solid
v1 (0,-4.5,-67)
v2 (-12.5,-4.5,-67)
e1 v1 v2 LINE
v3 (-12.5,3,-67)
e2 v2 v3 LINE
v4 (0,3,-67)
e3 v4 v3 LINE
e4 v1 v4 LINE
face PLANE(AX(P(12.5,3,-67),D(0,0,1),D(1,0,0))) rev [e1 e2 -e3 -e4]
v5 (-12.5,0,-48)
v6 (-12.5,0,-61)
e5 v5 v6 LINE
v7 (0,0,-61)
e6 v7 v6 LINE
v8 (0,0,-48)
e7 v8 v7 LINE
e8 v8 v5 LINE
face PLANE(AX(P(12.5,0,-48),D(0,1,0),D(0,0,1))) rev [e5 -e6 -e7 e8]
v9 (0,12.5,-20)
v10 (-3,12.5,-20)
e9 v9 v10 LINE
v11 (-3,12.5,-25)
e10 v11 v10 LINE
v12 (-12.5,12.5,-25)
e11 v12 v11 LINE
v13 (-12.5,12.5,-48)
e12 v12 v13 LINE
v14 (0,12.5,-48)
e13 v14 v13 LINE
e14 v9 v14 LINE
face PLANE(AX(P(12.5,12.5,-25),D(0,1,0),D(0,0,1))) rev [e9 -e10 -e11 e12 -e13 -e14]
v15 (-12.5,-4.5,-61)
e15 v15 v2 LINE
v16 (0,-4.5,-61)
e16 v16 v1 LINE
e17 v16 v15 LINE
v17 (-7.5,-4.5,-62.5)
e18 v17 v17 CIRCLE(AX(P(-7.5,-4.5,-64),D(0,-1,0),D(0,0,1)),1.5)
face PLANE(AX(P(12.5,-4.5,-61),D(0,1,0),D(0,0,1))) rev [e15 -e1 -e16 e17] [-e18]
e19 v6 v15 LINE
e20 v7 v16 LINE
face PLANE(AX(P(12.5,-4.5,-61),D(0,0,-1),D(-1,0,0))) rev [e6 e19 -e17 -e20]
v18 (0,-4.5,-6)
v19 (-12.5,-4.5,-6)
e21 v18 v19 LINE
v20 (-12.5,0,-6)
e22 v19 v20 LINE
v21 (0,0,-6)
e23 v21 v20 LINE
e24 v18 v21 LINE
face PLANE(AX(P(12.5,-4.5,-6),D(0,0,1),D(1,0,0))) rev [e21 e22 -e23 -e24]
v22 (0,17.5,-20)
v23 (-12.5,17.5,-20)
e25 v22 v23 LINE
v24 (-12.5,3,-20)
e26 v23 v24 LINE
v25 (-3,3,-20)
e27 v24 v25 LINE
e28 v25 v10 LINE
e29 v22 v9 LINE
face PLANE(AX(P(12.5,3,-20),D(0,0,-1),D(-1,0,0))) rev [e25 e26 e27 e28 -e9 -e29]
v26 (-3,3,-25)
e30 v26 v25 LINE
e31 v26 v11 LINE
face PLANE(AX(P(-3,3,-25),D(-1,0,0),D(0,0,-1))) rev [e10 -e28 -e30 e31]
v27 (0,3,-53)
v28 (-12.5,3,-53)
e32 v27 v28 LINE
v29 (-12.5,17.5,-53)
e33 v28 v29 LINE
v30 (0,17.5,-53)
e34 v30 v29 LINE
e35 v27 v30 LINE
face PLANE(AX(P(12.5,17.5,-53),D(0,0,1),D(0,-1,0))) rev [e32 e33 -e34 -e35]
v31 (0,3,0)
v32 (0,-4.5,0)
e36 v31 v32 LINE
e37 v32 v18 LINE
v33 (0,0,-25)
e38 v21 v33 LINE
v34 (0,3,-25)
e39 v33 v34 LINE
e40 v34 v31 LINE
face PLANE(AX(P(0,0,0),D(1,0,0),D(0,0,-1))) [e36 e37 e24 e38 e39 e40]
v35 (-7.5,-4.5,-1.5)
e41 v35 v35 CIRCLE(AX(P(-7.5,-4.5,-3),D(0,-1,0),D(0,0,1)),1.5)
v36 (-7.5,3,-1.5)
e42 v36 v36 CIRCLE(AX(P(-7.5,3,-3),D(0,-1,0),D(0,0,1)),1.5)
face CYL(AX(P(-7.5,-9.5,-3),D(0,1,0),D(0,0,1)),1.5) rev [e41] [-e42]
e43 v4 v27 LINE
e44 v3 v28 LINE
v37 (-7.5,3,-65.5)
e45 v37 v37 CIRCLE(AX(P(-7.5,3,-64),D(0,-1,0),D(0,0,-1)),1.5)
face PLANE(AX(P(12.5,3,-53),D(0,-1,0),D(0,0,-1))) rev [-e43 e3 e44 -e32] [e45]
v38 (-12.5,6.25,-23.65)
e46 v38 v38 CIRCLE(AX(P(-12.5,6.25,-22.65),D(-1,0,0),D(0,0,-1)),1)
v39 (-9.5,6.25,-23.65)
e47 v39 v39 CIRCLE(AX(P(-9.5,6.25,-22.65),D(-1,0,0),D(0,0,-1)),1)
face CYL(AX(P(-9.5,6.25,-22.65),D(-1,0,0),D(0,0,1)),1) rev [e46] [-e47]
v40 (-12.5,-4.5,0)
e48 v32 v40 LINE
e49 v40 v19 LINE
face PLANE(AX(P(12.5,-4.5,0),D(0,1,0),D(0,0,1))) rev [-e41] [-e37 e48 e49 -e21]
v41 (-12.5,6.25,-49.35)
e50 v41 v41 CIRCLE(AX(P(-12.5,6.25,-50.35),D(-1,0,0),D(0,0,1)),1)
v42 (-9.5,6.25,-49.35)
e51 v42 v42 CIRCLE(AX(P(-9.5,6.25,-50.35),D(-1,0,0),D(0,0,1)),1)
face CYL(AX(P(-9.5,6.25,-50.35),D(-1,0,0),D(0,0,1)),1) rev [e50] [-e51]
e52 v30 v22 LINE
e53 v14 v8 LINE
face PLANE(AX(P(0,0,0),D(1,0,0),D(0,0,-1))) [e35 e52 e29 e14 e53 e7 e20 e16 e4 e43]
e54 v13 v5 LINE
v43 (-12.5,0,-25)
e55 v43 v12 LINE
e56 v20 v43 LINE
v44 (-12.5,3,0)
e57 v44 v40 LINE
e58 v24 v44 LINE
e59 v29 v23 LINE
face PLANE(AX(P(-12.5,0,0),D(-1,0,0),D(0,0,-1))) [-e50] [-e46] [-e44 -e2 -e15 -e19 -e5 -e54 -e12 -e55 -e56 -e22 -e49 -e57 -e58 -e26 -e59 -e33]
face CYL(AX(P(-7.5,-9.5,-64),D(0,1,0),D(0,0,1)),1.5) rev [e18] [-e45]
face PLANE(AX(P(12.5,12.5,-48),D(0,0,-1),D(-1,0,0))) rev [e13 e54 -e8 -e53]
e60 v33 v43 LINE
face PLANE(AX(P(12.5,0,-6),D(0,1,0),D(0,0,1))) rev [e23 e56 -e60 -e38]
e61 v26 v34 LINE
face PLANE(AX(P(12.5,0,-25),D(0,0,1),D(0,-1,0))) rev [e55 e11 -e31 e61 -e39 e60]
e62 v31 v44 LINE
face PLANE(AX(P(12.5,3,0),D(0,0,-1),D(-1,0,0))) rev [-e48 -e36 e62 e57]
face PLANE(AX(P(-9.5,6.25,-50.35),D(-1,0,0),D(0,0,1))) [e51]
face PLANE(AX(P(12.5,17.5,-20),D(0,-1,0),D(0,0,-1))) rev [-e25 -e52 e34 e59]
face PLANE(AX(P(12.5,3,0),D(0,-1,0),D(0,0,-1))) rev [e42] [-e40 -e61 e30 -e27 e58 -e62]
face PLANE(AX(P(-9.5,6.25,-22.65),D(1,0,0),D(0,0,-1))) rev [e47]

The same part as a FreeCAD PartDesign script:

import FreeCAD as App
import Part
import Sketcher


def add_polygon(sketch, points):
    """Adds a closed chain of lines whose ends are joined by coincident constraints."""
    first, n = sketch.GeometryCount, len(points)
    for a, b in zip(points, points[1:] + points[:1]):
        sketch.addGeometry(Part.LineSegment(App.Vector(*a, 0), App.Vector(*b, 0)), False)
    for i in range(n):
        sketch.addConstraint(Sketcher.Constraint("Coincident", first + i, 2, first + (i + 1) % n, 1))

doc = App.newDocument("Part")
body = doc.addObject("PartDesign::Body", "Body")

sketch1 = body.newObject("Sketcher::SketchObject", "Sketch")
sketch1.AttachmentSupport = (doc.getObject("YZ_Plane"), [""])
sketch1.MapMode = "FlatFace"
add_polygon(sketch1, [(0, -6), (0, -25), (12.5, -25), (12.5, -48), (0, -48), (0, -61), (-4.5, -61), (-4.5, -67), (3, -67), (3, -53), (17.5, -53), (17.5, -20), (3, -20), (3, 0), (-4.5, 0), (-4.5, -6)])
sketch1.addConstraint(Sketcher.Constraint("Vertical", 0))
sketch1.addConstraint(Sketcher.Constraint("Horizontal", 1))
sketch1.addConstraint(Sketcher.Constraint("Vertical", 2))
sketch1.addConstraint(Sketcher.Constraint("Horizontal", 3))
sketch1.addConstraint(Sketcher.Constraint("Vertical", 4))
sketch1.addConstraint(Sketcher.Constraint("Horizontal", 5))
sketch1.addConstraint(Sketcher.Constraint("Vertical", 6))
sketch1.addConstraint(Sketcher.Constraint("Horizontal", 7))
sketch1.addConstraint(Sketcher.Constraint("Vertical", 8))
sketch1.addConstraint(Sketcher.Constraint("Horizontal", 9))
sketch1.addConstraint(Sketcher.Constraint("Vertical", 10))
sketch1.addConstraint(Sketcher.Constraint("Horizontal", 11))
sketch1.addConstraint(Sketcher.Constraint("Vertical", 12))
sketch1.addConstraint(Sketcher.Constraint("Horizontal", 13))
sketch1.addConstraint(Sketcher.Constraint("Vertical", 14))
sketch1.addConstraint(Sketcher.Constraint("Horizontal", 15))
sketch1.addConstraint(Sketcher.Constraint("PointOnObject", 0, 2, -2))
sketch1.addConstraint(Sketcher.Constraint("PointOnObject", 3, 2, -2))
sketch1.addConstraint(Sketcher.Constraint("PointOnObject", 12, 2, -1))
sketch1.addConstraint(Sketcher.Constraint("Vertical", 8, 2, 11, 2))
sketch1.addConstraint(Sketcher.Constraint("Vertical", 6, 2, 13, 2))
sketch1.addConstraint(Sketcher.Constraint("Equal", 6, 14))
sketch1.addConstraint(Sketcher.Constraint("DistanceY", 0, 2, 0, 1, 19.0))
sketch1.addConstraint(Sketcher.Constraint("DistanceY", 2, 2, 2, 1, 23.0))
sketch1.addConstraint(Sketcher.Constraint("DistanceY", 4, 2, 4, 1, 13.0))
sketch1.addConstraint(Sketcher.Constraint("DistanceY", 6, 2, 6, 1, 6.0))
sketch1.addConstraint(Sketcher.Constraint("DistanceY", 8, 1, 8, 2, 14.0))
sketch1.addConstraint(Sketcher.Constraint("DistanceY", 10, 1, 10, 2, 33.0))
sketch1.addConstraint(Sketcher.Constraint("DistanceX", 1, 1, 1, 2, 12.5))
sketch1.addConstraint(Sketcher.Constraint("DistanceX", 5, 2, 5, 1, 4.5))
sketch1.addConstraint(Sketcher.Constraint("DistanceX", 7, 1, 7, 2, 7.5))
sketch1.addConstraint(Sketcher.Constraint("DistanceX", 9, 1, 9, 2, 14.5))
pad1 = body.newObject("PartDesign::Pad", "Pad")
pad1.Profile = sketch1
pad1.Length = 12.5

sketch2 = body.newObject("Sketcher::SketchObject", "Sketch001")
sketch2.AttachmentSupport = (doc.getObject("XZ_Plane"), [""])
sketch2.MapMode = "FlatFace"
sketch2.AttachmentOffset = App.Placement(App.Vector(0, 0, -3), App.Rotation())
sketch2.addGeometry(Part.Circle(App.Vector(7.5, -3, 0), App.Vector(0, 0, 1), 1.5), False)
sketch2.addGeometry(Part.Circle(App.Vector(7.5, -64, 0), App.Vector(0, 0, 1), 1.5), False)
sketch2.addConstraint(Sketcher.Constraint("Equal", 0, 1))
sketch2.addConstraint(Sketcher.Constraint("Vertical", 0, 3, 1, 3))
sketch2.addConstraint(Sketcher.Constraint("Diameter", 0, 3.0))
sketch2.addConstraint(Sketcher.Constraint("DistanceY", 0, 3, -1, 1, 3.0))
sketch2.addConstraint(Sketcher.Constraint("DistanceY", 1, 3, -1, 1, 64.0))
sketch2.addConstraint(Sketcher.Constraint("DistanceX", -1, 1, 0, 3, 7.5))
pocket1 = body.newObject("PartDesign::Pocket", "Pocket")
pocket1.Profile = sketch2
pocket1.Length = 12.5
pocket1.Reversed = True

sketch3 = body.newObject("Sketcher::SketchObject", "Sketch002")
sketch3.AttachmentSupport = (doc.getObject("XY_Plane"), [""])
sketch3.MapMode = "FlatFace"
sketch3.AttachmentOffset = App.Placement(App.Vector(0, 0, -20), App.Rotation())
add_polygon(sketch3, [(0, 12.5), (0, 3), (3, 3), (3, 12.5)])
sketch3.addConstraint(Sketcher.Constraint("Vertical", 0))
sketch3.addConstraint(Sketcher.Constraint("Horizontal", 1))
sketch3.addConstraint(Sketcher.Constraint("Vertical", 2))
sketch3.addConstraint(Sketcher.Constraint("Horizontal", 3))
sketch3.addConstraint(Sketcher.Constraint("PointOnObject", 0, 2, -2))
sketch3.addConstraint(Sketcher.Constraint("DistanceX", 1, 1, 1, 2, 3.0))
sketch3.addConstraint(Sketcher.Constraint("DistanceY", 0, 2, 0, 1, 9.5))
sketch3.addConstraint(Sketcher.Constraint("DistanceY", -1, 1, 0, 2, 3.0))
pocket2 = body.newObject("PartDesign::Pocket", "Pocket001")
pocket2.Profile = sketch3
pocket2.Length = 5
body2 = doc.addObject("PartDesign::Body", "Body001")
doc.recompute()

body2.BaseFeature = body
doc.recompute()

mirroring = doc.addObject("Part::Mirroring", "Mirroring")
mirroring.Source = body
mirroring.Base = App.Vector(0, 0, 0)
mirroring.Normal = App.Vector(1, 0, 0)
body3 = doc.addObject("PartDesign::Body", "Body002")
body3.BaseFeature = mirroring
boolean = body2.newObject("PartDesign::Boolean", "Boolean")
boolean.Type = "Fuse"
boolean.addObjects([body3])
doc.recompute()

sketch4 = body2.newObject("Sketcher::SketchObject", "Sketch003")
sketch4.AttachmentSupport = (doc.getObject("YZ_Plane001"), [""])
sketch4.MapMode = "FlatFace"
add_polygon(sketch4, [(18, 2), (-16, 2), (-16, -79), (18, -79)])
sketch4.addConstraint(Sketcher.Constraint("Horizontal", 0))
sketch4.addConstraint(Sketcher.Constraint("Vertical", 1))
sketch4.addConstraint(Sketcher.Constraint("Horizontal", 2))
sketch4.addConstraint(Sketcher.Constraint("Vertical", 3))
sketch4.addConstraint(Sketcher.Constraint("DistanceX", 0, 2, 0, 1, 34.070446))
sketch4.addConstraint(Sketcher.Constraint("DistanceY", 1, 2, 1, 1, 80.755036))
sketch4.addConstraint(Sketcher.Constraint("DistanceY", 1, 2, -1, 1, 78.594029))
sketch4.addConstraint(Sketcher.Constraint("DistanceX", -1, 1, 2, 2, 18.19201))
pocket3 = body2.newObject("PartDesign::Pocket", "Pocket002")
pocket3.Profile = sketch4
pocket3.Length = 29.5
pocket3.Reversed = True

sketch5 = body2.newObject("Sketcher::SketchObject", "Sketch004")
sketch5.AttachmentSupport = (doc.getObject("YZ_Plane001"), [""])
sketch5.MapMode = "FlatFace"
sketch5.AttachmentOffset = App.Placement(App.Vector(0, 0, -12.5), App.Rotation())
sketch5.addGeometry(Part.Circle(App.Vector(6.2, -50.4, 0), App.Vector(0, 0, 1), 1), False)
sketch5.addGeometry(Part.Circle(App.Vector(6.2, -22.6, 0), App.Vector(0, 0, 1), 1), False)
sketch5.addConstraint(Sketcher.Constraint("Equal", 0, 1))
sketch5.addConstraint(Sketcher.Constraint("Vertical", 0, 3, 1, 3))
sketch5.addConstraint(Sketcher.Constraint("Diameter", 0, 2.0))
sketch5.addConstraint(Sketcher.Constraint("DistanceY", 0, 3, 1, 3, 27.7))
sketch5.addConstraint(Sketcher.Constraint("DistanceX", -1, 1, 0, 3, 6.25))
sketch5.addConstraint(Sketcher.Constraint("DistanceY", 0, 3, -1, 1, 50.35))
pocket4 = body2.newObject("PartDesign::Pocket", "Pocket003")
pocket4.Profile = sketch5
pocket4.Length = 3
pocket4.Reversed = True
mirroring.Visibility = False

doc.recompute()
